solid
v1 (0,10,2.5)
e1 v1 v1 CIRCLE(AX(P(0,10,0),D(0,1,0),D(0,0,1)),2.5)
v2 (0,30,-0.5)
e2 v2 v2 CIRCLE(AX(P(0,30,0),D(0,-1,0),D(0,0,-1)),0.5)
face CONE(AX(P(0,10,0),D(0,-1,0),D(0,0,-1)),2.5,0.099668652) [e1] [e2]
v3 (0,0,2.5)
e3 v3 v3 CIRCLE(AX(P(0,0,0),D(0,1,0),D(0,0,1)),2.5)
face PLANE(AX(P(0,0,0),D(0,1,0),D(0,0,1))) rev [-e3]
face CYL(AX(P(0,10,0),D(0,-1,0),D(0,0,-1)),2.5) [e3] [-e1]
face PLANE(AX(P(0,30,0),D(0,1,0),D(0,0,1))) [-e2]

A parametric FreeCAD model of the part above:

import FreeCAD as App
import Part
import Sketcher

V = App.Vector
Q = App.Units.Quantity

doc = App.newDocument("Part")
body = doc.addObject("PartDesign::Body", "Body")

# Sketch on XZ plane
sketch1 = body.newObject("Sketcher::SketchObject", "Sketch")
sketch1.AttachmentSupport = (doc.getObject("XZ_Plane"), [""])
sketch1.MapMode = "FlatFace"
sketch1.addGeometry(Part.Circle(V(0, 0, 0), V(0, 0, 1), 2.5), False)
sketch1.addConstraint([
    Sketcher.Constraint("Coincident", 0, 3, -1, 1),
    Sketcher.Constraint("Diameter", 0, Q("5 mm")),
])
pad1 = body.newObject("PartDesign::Pad", "Pad")
pad1.Profile = sketch1
pad1.Length = 10
pad1.Reversed = True

# Sketch on XY plane
sketch2 = body.newObject("Sketcher::SketchObject", "Sketch001")
sketch2.AttachmentSupport = (doc.getObject("XY_Plane"), [""])
sketch2.MapMode = "FlatFace"
sketch2.addGeometry([
    Part.LineSegment(V(0.5, 30, 0), V(0, 30, 0)),
    Part.LineSegment(V(0, 30, 0), V(0, 10, 0)),
    Part.LineSegment(V(0, 10, 0), V(2.5, 10, 0)),
    Part.LineSegment(V(2.5, 10, 0), V(0.5, 30, 0)),
], False)
sketch2.addConstraint([
    Sketcher.Constraint("Coincident", 0, 2, 1, 1),
    Sketcher.Constraint("Coincident", 1, 2, 2, 1),
    Sketcher.Constraint("Coincident", 2, 2, 3, 1),
    Sketcher.Constraint("Coincident", 3, 2, 0, 1),
    Sketcher.Constraint("Horizontal", 0),
    Sketcher.Constraint("Vertical", 1),
    Sketcher.Constraint("Horizontal", 2),
    Sketcher.Constraint("PointOnObject", 0, 2, -2),
    Sketcher.Constraint("DistanceY", 1, 2, 1, 1, Q("20 mm")),
    Sketcher.Constraint("DistanceX", 0, 2, 0, 1, Q("0.5 mm")),
    Sketcher.Constraint("DistanceX", 2, 1, 2, 2, Q("2.5 mm")),
    Sketcher.Constraint("DistanceY", -1, 1, 0, 2, Q("30 mm")),
])
revolution = body.newObject("PartDesign::Revolution", "Revolution")
revolution.Profile = sketch2
revolution.ReferenceAxis = (sketch2, ["V_Axis"])
revolution.Angle = 360

doc.recompute()
